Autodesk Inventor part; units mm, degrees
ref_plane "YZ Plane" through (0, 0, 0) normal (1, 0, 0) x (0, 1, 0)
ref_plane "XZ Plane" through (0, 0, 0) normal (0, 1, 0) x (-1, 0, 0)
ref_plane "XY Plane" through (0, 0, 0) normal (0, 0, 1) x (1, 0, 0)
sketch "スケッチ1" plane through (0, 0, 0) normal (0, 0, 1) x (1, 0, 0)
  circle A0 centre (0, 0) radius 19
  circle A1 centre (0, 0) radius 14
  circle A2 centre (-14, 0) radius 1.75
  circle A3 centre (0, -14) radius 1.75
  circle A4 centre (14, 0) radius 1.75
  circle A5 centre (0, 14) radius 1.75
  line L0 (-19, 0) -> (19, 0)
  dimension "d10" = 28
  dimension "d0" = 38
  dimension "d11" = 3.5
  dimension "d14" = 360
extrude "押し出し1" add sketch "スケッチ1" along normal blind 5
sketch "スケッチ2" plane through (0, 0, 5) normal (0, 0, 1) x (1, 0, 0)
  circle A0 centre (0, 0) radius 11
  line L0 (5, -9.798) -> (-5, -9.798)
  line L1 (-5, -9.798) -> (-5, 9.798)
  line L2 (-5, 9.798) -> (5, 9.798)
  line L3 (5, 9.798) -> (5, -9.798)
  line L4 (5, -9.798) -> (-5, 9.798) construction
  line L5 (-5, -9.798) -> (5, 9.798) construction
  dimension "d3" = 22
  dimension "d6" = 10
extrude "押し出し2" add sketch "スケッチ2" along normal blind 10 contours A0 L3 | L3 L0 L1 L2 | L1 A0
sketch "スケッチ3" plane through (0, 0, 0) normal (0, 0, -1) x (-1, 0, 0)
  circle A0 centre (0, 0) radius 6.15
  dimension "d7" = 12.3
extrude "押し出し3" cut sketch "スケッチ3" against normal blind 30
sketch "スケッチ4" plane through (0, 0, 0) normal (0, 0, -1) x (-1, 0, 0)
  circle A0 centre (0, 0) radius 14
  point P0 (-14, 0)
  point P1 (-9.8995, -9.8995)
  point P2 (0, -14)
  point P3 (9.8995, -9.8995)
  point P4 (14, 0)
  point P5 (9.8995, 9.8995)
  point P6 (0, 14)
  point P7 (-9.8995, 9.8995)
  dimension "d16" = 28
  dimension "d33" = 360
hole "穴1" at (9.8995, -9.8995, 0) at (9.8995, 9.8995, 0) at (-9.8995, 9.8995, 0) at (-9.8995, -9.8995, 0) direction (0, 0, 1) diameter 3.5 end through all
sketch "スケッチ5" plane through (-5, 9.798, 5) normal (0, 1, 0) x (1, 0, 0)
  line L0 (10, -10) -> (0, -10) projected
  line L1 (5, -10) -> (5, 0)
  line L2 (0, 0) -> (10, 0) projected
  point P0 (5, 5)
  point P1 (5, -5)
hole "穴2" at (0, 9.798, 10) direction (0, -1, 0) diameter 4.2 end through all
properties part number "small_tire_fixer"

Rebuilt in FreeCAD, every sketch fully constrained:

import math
import FreeCAD as App
import Part
import Sketcher

V = App.Vector
Q = App.Units.Quantity

doc = App.newDocument("Part")
params = doc.addObject("Spreadsheet::Sheet", "Params")
for row, (alias, value) in enumerate([
    ("sketch1_diameter", "38 mm"),
    ("pad1_length", "5 mm"),
    ("sketch2_radius", "11 mm"),
    ("sketch2_width", "10 mm"),
    ("pad2_length", "10 mm"),
    ("sketch3_diameter", "12.3 mm"),
    ("pocket1_length", "30 mm"),
    ("sketch4_diameter", "3.5 mm"),
    ("hole_diameter", "3.5 mm"),
    ("sketch5_diameter", "4.2 mm"),
    ("hole2_diameter", "4.2 mm"),
], start=1):
    params.set(f"A{row}", alias)
    params.set(f"B{row}", "=" + value)
    params.setAlias(f"B{row}", alias)

body = doc.addObject("PartDesign::Body", "Body")

sketch1 = doc.addObject("Sketcher::SketchObject", "Sketch")
body.addObject(sketch1)
sketch1.AttachmentSupport = (doc.XY_Plane, [""])
sketch1.MapMode = "FlatFace"
sketch1.addGeometry(Part.Circle(V(0, 0, 0), V(0, 0, 1), 19), False)
sketch1.addConstraint([
    Sketcher.Constraint("Coincident", 0, 3, -1, 1),
    Sketcher.Constraint("Diameter", 0, Q("38 mm")),
])
sketch1.setExpression("Constraints[1]", "Params.sketch1_diameter")
pad1 = doc.addObject("PartDesign::Pad", "Pad")
body.addObject(pad1)
pad1.Profile = sketch1
pad1.setExpression("Length", "Params.pad1_length")

sketch2 = doc.addObject("Sketcher::SketchObject", "Sketch001")
body.addObject(sketch2)
sketch2.AttachmentSupport = (doc.XY_Plane, [""])
sketch2.MapMode = "FlatFace"
sketch2.AttachmentOffset = App.Placement(V(0, 0, 5), App.Rotation())
sketch2.addGeometry([
    Part.ArcOfCircle(Part.Circle(V(0, 0, 0), V(0, 0, 1), 11), math.radians(-62.964405), math.radians(62.964405)),
    Part.LineSegment(V(5, 9.798, 0), V(-5, 9.798, 0)),
    Part.ArcOfCircle(Part.Circle(V(0, 0, 0), V(0, 0, 1), 11), math.radians(117.035595), math.radians(242.964405)),
    Part.LineSegment(V(-5, -9.798, 0), V(5, -9.798, 0)),
], False)
sketch2.addConstraint([
    Sketcher.Constraint("Coincident", 0, 2, 1, 1),
    Sketcher.Constraint("Coincident", 1, 2, 2, 1),
    Sketcher.Constraint("Coincident", 2, 2, 3, 1),
    Sketcher.Constraint("Coincident", 3, 2, 0, 1),
    Sketcher.Constraint("Horizontal", 1),
    Sketcher.Constraint("Horizontal", 3),
    Sketcher.Constraint("Coincident", 0, 3, -1, 1),
    Sketcher.Constraint("Coincident", 2, 3, -1, 1),
    Sketcher.Constraint("Equal", 0, 2),
    Sketcher.Constraint("Vertical", 1, 2, 2, 2),
    Sketcher.Constraint("Radius", 0, Q("11 mm")),
    Sketcher.Constraint("DistanceX", 1, 2, 1, 1, Q("10 mm")),
])
sketch2.setExpression("Constraints[10]", "Params.sketch2_radius")
sketch2.setExpression("Constraints[11]", "Params.sketch2_width")
pad2 = doc.addObject("PartDesign::Pad", "Pad001")
body.addObject(pad2)
pad2.Profile = sketch2
pad2.setExpression("Length", "Params.pad2_length")

sketch3 = doc.addObject("Sketcher::SketchObject", "Sketch002")
body.addObject(sketch3)
sketch3.AttachmentSupport = (doc.XY_Plane, [""])
sketch3.MapMode = "FlatFace"
sketch3.addGeometry(Part.Circle(V(0, 0, 0), V(0, 0, 1), 6.15), False)
sketch3.addConstraint([
    Sketcher.Constraint("Coincident", 0, 3, -1, 1),
    Sketcher.Constraint("Diameter", 0, Q("12.3 mm")),
])
sketch3.setExpression("Constraints[1]", "Params.sketch3_diameter")
pocket1 = doc.addObject("PartDesign::Pocket", "Pocket")
body.addObject(pocket1)
pocket1.Profile = sketch3
pocket1.setExpression("Length", "Params.pocket1_length")
pocket1.Reversed = True

sketch4 = doc.addObject("Sketcher::SketchObject", "Sketch003")
body.addObject(sketch4)
sketch4.AttachmentSupport = (doc.XY_Plane, [""])
sketch4.MapMode = "FlatFace"
sketch4.addGeometry([
    Part.Circle(V(9.8995, -9.8995, 0), V(0, 0, 1), 1.75),
    Part.Circle(V(9.8995, 9.8995, 0), V(0, 0, 1), 1.75),
    Part.Circle(V(-9.8995, 9.8995, 0), V(0, 0, 1), 1.75),
    Part.Circle(V(-9.8995, -9.8995, 0), V(0, 0, 1), 1.75),
], False)
sketch4.addConstraint([
    Sketcher.Constraint("Equal", 0, 1),
    Sketcher.Constraint("Equal", 1, 2),
    Sketcher.Constraint("Equal", 2, 3),
    Sketcher.Constraint("Symmetric", 0, 3, 2, 3, -1, 1),
    Sketcher.Constraint("Symmetric", 1, 3, 3, 3, -1, 1),
    Sketcher.Constraint("Symmetric", 1, 3, 2, 3, -2),
    Sketcher.Constraint("Diameter", 0, Q("3.5 mm")),
    Sketcher.Constraint("DistanceY", 0, 3, 1, 3, Q("19.799 mm")),
    Sketcher.Constraint("DistanceX", 2, 3, 1, 3, Q("19.799 mm")),
])
sketch4.setExpression("Constraints[6]", "Params.sketch4_diameter")
doc.recompute()
hole = doc.addObject("PartDesign::Hole", "Hole")
body.addObject(hole)
hole.Profile = sketch4
hole.ThreadType = "None"
hole.setExpression("Diameter", "Params.hole_diameter")
hole.DepthType = "ThroughAll"
hole.Reversed = True

sketch5 = doc.addObject("Sketcher::SketchObject", "Sketch004")
body.addObject(sketch5)
sketch5.AttachmentSupport = (doc.XZ_Plane, [""])
sketch5.MapMode = "FlatFace"
sketch5.AttachmentOffset = App.Placement(V(0, 0, -9.798), App.Rotation())
sketch5.addGeometry(Part.Circle(V(0, 10, 0), V(0, 0, 1), 2.1), False)
sketch5.addConstraint([
    Sketcher.Constraint("PointOnObject", 0, 3, -2),
    Sketcher.Constraint("Diameter", 0, Q("4.2 mm")),
    Sketcher.Constraint("DistanceY", -1, 1, 0, 3, Q("10 mm")),
])
sketch5.setExpression("Constraints[1]", "Params.sketch5_diameter")
doc.recompute()
hole2 = doc.addObject("PartDesign::Hole", "Hole001")
body.addObject(hole2)
hole2.Profile = sketch5
hole2.ThreadType = "None"
hole2.setExpression("Diameter", "Params.hole2_diameter")
hole2.DepthType = "ThroughAll"
hole2.Reversed = True

doc.recompute()
